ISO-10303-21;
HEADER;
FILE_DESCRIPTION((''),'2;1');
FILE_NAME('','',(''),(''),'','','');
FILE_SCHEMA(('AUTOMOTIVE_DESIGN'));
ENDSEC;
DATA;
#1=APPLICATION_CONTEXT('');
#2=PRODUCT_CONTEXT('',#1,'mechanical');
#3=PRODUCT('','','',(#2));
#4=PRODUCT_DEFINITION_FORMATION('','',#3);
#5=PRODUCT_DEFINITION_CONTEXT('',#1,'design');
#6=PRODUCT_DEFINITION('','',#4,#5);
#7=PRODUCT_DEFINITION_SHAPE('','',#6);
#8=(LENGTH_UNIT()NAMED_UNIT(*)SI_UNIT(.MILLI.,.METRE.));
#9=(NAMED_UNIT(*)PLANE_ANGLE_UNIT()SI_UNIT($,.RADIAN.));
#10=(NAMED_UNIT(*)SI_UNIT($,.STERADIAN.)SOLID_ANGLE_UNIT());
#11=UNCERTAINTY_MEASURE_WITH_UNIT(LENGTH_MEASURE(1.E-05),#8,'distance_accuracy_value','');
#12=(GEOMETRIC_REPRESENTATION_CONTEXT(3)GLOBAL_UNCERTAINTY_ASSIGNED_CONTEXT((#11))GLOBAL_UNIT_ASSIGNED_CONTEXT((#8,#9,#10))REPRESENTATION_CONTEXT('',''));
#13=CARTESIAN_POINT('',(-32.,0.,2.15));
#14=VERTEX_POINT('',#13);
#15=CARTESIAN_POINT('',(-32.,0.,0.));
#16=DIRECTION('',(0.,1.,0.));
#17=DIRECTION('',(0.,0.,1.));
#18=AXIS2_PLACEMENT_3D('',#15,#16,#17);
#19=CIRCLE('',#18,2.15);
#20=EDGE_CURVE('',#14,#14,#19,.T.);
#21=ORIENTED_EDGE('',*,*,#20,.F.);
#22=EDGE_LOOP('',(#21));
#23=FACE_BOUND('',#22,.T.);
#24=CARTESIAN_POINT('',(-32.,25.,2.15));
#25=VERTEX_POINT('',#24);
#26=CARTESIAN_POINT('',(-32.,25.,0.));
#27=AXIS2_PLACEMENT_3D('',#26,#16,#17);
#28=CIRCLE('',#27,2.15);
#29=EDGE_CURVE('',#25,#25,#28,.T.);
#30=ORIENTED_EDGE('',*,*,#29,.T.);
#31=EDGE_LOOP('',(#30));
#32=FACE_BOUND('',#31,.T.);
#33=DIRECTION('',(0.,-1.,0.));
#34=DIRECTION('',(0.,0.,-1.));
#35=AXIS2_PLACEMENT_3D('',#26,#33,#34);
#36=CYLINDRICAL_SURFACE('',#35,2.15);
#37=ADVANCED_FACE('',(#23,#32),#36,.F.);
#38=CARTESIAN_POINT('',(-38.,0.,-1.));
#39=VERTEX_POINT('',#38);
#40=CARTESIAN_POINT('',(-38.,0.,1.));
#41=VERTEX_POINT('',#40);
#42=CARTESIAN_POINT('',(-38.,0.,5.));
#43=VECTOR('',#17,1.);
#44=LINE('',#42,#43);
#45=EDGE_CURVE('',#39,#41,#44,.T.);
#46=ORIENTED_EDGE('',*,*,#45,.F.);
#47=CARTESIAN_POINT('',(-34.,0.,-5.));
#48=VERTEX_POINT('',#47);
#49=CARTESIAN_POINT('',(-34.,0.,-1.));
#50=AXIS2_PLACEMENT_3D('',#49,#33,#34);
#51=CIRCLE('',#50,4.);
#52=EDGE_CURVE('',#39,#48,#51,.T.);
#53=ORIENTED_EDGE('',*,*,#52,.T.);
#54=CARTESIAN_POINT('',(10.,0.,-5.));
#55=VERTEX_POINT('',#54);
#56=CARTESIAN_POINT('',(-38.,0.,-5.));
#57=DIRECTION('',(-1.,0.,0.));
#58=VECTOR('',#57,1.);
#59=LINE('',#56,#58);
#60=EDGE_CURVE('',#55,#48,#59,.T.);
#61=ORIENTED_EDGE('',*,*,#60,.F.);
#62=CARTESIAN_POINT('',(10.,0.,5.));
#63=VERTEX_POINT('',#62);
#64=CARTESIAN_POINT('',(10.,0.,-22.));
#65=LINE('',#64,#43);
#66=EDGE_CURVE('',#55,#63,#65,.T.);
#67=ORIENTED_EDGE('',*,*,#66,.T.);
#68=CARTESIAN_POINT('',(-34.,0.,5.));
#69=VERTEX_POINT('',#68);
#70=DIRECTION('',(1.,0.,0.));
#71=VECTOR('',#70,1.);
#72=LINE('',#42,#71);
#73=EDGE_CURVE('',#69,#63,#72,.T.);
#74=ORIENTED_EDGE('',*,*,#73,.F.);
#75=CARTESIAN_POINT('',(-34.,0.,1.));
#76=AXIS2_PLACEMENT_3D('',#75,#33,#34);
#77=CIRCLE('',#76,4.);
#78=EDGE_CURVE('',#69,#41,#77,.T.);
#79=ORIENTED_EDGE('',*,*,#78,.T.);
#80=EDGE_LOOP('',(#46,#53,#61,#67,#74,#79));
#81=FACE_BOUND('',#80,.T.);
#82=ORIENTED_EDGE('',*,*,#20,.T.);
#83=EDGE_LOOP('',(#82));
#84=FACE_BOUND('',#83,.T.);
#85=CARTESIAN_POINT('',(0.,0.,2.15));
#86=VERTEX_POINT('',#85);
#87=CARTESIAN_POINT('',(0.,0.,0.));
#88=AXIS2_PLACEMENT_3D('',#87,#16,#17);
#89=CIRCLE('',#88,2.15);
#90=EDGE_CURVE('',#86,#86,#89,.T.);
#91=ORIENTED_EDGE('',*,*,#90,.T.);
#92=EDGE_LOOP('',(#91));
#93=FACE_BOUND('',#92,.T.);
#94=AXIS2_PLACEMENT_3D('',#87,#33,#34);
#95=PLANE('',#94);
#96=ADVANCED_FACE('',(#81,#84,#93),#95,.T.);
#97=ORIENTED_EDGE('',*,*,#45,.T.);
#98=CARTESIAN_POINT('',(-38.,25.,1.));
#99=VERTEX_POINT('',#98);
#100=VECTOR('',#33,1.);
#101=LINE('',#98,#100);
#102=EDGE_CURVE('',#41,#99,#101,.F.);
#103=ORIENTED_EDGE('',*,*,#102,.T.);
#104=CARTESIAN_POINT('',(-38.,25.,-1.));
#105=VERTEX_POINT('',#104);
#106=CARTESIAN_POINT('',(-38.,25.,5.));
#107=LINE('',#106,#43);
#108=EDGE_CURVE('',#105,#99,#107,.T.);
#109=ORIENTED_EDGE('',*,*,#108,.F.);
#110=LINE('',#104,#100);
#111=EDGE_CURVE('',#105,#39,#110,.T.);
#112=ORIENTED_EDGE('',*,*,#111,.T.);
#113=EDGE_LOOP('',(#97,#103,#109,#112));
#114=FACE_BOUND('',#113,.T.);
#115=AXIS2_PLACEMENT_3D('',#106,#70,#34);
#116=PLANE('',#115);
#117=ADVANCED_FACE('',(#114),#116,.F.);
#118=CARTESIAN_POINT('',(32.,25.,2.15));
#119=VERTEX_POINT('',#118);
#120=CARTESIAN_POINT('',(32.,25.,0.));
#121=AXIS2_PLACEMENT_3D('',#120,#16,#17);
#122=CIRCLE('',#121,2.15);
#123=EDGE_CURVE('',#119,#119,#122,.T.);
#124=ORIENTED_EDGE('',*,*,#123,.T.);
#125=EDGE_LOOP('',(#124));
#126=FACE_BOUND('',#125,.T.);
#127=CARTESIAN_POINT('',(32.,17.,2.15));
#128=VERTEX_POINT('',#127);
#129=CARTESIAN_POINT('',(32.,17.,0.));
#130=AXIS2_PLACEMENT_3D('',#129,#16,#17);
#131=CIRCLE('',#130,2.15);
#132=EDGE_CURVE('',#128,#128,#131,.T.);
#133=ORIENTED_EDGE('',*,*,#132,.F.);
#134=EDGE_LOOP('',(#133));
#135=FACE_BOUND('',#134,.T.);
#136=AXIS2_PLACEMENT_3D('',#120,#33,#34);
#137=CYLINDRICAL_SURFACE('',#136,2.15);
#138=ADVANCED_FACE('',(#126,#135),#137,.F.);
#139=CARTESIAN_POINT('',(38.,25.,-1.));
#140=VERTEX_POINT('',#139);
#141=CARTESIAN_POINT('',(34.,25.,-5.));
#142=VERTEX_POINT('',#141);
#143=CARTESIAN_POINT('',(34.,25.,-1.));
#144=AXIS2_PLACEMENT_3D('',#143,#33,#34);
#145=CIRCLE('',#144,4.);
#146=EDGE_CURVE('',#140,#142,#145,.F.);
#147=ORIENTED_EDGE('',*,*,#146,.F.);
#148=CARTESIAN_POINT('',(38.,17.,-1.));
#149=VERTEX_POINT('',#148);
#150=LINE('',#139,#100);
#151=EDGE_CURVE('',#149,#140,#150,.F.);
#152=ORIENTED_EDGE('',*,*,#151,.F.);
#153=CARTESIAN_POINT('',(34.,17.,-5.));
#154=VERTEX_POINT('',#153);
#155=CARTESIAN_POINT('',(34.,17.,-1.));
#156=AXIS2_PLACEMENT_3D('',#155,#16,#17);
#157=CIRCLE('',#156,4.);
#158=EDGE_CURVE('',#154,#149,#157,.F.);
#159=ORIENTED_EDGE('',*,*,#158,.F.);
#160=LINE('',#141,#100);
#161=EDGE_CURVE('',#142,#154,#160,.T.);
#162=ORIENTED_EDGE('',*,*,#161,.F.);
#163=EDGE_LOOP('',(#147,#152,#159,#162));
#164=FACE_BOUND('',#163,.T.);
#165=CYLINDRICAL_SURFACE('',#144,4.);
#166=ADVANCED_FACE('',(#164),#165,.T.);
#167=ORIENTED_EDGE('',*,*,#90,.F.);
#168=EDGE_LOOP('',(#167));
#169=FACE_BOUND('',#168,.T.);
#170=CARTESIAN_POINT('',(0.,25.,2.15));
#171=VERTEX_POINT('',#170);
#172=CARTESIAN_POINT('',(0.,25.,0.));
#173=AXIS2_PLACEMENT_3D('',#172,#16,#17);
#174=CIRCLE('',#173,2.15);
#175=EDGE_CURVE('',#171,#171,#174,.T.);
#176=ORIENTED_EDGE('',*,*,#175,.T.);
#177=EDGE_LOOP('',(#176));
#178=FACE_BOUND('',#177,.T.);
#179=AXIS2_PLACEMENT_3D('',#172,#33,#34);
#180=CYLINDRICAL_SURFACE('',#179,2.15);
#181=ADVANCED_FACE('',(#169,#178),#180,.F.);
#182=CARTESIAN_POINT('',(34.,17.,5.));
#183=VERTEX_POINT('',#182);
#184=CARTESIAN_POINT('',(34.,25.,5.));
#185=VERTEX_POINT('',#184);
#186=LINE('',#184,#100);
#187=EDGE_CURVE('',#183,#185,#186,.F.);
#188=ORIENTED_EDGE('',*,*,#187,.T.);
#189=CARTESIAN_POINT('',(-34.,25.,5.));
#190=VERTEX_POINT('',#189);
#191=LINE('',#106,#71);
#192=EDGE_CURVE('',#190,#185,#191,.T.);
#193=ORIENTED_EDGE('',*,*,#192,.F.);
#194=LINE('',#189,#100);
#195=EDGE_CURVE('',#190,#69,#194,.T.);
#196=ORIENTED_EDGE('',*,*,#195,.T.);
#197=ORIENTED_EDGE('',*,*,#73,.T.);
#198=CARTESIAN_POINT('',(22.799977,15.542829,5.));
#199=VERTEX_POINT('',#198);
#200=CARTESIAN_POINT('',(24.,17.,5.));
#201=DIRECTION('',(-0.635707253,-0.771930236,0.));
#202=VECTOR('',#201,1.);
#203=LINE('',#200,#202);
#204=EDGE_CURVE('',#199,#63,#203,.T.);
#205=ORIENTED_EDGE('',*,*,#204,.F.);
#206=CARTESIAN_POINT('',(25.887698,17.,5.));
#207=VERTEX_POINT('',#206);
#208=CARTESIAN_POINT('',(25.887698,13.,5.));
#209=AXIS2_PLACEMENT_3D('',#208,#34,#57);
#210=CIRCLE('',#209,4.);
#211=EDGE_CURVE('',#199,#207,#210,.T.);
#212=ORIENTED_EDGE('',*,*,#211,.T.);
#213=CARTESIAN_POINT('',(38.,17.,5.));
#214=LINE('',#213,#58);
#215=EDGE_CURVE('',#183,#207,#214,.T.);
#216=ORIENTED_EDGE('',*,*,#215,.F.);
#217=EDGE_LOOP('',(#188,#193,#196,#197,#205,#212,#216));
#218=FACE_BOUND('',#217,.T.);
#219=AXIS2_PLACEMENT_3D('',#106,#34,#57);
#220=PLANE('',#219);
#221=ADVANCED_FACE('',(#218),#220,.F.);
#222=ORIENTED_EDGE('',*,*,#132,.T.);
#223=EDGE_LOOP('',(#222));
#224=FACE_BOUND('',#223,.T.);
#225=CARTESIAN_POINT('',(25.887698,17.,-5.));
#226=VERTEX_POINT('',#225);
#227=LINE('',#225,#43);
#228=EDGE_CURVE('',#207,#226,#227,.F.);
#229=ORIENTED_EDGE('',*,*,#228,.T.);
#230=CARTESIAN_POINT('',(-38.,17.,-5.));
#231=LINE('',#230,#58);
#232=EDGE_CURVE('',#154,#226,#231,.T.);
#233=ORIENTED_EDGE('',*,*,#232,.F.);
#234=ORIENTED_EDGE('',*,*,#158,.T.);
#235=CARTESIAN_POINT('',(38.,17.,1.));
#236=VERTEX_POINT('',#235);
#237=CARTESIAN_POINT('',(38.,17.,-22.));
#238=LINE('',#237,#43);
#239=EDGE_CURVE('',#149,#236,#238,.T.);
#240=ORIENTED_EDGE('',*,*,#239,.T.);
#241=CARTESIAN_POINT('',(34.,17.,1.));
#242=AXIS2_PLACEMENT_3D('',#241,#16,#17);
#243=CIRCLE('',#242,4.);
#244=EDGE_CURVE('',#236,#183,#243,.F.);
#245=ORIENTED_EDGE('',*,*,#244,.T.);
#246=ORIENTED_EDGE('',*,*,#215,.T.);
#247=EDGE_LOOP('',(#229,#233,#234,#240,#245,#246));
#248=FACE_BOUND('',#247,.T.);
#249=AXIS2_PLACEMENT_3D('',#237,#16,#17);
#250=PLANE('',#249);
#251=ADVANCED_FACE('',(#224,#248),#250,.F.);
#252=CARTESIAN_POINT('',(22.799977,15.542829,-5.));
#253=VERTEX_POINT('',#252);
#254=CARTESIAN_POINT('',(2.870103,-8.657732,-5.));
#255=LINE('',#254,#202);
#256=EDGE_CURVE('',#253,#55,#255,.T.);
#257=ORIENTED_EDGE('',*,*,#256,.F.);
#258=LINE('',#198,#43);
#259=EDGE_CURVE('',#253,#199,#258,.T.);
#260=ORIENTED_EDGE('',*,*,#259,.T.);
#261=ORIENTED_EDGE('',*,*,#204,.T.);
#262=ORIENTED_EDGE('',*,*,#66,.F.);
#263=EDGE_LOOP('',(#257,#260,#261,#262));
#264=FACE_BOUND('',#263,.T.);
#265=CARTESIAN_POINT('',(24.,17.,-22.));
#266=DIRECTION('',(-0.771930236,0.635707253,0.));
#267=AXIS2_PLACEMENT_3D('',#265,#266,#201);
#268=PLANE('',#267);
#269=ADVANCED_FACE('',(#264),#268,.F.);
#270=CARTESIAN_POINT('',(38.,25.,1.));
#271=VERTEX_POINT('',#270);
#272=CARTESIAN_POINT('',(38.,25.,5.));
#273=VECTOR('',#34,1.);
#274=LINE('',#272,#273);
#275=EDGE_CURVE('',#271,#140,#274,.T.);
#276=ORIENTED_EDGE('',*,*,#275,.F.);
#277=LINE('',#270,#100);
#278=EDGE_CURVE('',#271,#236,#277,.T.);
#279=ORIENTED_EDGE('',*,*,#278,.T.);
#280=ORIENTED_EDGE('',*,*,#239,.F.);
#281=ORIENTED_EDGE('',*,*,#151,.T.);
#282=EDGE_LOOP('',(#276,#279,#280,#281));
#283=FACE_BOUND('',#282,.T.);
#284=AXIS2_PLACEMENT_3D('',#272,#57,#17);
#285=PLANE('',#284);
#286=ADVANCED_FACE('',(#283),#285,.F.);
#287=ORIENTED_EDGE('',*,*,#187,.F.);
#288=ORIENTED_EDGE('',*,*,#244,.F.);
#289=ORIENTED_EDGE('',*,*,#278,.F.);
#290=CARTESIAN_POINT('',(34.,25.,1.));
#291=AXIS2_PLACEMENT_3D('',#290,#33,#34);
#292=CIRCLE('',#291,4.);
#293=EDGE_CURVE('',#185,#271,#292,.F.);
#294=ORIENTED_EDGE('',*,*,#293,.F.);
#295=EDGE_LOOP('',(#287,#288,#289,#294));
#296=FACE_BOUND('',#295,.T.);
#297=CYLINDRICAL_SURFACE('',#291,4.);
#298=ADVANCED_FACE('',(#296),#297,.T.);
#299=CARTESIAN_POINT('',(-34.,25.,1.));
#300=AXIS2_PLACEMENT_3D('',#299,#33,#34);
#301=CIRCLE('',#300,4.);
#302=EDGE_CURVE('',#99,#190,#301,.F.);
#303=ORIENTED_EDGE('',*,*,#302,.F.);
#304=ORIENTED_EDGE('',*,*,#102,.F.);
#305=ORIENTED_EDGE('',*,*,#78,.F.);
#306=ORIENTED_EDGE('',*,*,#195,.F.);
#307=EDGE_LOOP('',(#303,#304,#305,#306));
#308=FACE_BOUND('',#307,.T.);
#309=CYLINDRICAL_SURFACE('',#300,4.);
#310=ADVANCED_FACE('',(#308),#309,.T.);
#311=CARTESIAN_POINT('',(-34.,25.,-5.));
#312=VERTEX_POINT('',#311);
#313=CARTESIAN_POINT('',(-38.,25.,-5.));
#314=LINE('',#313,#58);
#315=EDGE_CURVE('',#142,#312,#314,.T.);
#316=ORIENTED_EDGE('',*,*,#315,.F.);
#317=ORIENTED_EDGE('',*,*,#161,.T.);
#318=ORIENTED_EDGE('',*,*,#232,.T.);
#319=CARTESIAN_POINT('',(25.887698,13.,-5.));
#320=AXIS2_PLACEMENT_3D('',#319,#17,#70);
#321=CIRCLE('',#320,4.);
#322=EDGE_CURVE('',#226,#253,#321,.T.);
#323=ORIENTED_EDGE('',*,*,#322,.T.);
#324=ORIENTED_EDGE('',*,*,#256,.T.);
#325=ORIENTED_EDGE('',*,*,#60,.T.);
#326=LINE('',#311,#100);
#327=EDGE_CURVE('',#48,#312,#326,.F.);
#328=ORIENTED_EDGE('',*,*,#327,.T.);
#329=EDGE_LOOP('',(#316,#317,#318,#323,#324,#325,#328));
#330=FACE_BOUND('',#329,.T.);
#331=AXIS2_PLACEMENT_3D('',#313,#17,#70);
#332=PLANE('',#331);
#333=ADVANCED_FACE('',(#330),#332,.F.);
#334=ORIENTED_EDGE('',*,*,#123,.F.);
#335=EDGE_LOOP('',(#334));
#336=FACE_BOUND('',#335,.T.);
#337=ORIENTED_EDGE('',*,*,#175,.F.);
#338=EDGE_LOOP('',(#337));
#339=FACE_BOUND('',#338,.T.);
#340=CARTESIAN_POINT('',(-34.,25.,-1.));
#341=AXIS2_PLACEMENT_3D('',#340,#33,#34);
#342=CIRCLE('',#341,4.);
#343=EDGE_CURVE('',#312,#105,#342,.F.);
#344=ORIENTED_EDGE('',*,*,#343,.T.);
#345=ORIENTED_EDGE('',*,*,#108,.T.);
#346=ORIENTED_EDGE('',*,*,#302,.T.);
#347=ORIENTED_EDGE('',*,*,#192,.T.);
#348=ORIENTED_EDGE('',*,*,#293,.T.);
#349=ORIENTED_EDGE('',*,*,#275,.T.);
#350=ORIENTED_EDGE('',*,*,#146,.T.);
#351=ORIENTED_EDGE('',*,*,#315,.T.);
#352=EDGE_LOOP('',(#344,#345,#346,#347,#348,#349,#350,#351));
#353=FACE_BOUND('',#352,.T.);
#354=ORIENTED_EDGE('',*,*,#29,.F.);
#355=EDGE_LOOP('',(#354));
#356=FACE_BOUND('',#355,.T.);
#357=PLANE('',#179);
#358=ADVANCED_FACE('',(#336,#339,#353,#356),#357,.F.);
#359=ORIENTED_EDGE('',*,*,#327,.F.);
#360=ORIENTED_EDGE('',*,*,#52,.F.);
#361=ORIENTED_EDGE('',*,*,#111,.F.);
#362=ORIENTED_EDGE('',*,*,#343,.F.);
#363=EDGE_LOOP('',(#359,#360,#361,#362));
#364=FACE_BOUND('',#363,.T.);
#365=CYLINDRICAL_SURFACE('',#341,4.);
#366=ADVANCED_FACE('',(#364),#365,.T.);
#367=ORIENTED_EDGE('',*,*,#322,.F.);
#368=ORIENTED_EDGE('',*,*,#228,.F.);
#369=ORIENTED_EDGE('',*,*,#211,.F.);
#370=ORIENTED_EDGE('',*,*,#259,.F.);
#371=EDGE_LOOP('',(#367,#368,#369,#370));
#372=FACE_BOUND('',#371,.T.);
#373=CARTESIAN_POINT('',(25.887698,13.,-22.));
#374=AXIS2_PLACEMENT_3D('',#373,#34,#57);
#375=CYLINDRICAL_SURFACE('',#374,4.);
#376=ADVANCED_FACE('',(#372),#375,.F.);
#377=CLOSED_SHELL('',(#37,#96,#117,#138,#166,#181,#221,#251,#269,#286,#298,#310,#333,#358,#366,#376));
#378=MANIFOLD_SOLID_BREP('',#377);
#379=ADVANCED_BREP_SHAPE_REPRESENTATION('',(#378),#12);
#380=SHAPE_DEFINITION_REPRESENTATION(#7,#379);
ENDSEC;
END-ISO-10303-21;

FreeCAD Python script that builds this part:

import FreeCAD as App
import Part
import Sketcher

V = App.Vector


def edges_at(feature, points):
    """Names of the edges that pass closest to the given points."""
    edges = feature.Shape.Edges
    near = lambda p: min(range(len(edges)), key=lambda i: edges[i].distToShape(Part.Vertex(*p))[0])
    return sorted({f"Edge{near(p) + 1}" for p in points})

doc = App.newDocument("Part")
params = doc.addObject("Spreadsheet::Sheet", "Params")
for row, (alias, value) in enumerate([
    ("sketch1_diameter", "4.3 mm"),
    ("sketch1_width", "76 mm"),
    ("sketch1_height", "10 mm"),
    ("pad1_length", "25 mm"),
    ("sketch2_width", "14 mm"),
    ("sketch2_width2", "28 mm"),
    ("sketch2_height", "17 mm"),
    ("pocket1_length", "27 mm"),
    ("fillet_radius", "4 mm"),
], start=1):
    params.set(f"A{row}", alias)
    params.set(f"B{row}", "=" + value)
    params.setAlias(f"B{row}", alias)

body = doc.addObject("PartDesign::Body", "Body")

sketch1 = doc.addObject("Sketcher::SketchObject", "Sketch")
body.addObject(sketch1)
sketch1.AttachmentSupport = (doc.XZ_Plane, [""])
sketch1.MapMode = "FlatFace"
sketch1.addGeometry([
    Part.LineSegment(V(-38, -5, 0), V(-38, 5, 0)),
    Part.LineSegment(V(-38, 5, 0), V(38, 5, 0)),
    Part.LineSegment(V(38, 5, 0), V(38, -5, 0)),
    Part.LineSegment(V(38, -5, 0), V(-38, -5, 0)),
    Part.Circle(V(-32, 0, 0), V(0, 0, 1), 2.1),
    Part.Circle(V(0, 0, 0), V(0, 0, 1), 2.1),
    Part.Circle(V(32, 0, 0), V(0, 0, 1), 2.1),
], False)
sketch1.addConstraint([
    Sketcher.Constraint("Coincident", 0, 2, 1, 1),
    Sketcher.Constraint("Coincident", 1, 2, 2, 1),
    Sketcher.Constraint("Coincident", 2, 2, 3, 1),
    Sketcher.Constraint("Coincident", 3, 2, 0, 1),
    Sketcher.Constraint("Vertical", 0),
    Sketcher.Constraint("Horizontal", 1),
    Sketcher.Constraint("Vertical", 2),
    Sketcher.Constraint("Horizontal", 3),
    Sketcher.Constraint("Coincident", 5, 3, -1, 1),
    Sketcher.Constraint("Equal", 4, 5),
    Sketcher.Constraint("Equal", 5, 6),
    Sketcher.Constraint("Symmetric", 4, 3, 6, 3, -1, 1),
    Sketcher.Constraint("Symmetric", 0, 2, 2, 2, -1, 1),
    Sketcher.Constraint("PointOnObject", 4, 3, -1),
    Sketcher.Constraint("Diameter", 4, 4.3),
    Sketcher.Constraint("DistanceX", 1, 1, 1, 2, 76.0),
    Sketcher.Constraint("DistanceY", 0, 1, 0, 2, 10.0),
    Sketcher.Constraint("DistanceX", 4, 3, -1, 1, 32.0),
])
sketch1.setExpression("Constraints[14]", "Params.sketch1_diameter")
sketch1.setExpression("Constraints[15]", "Params.sketch1_width")
sketch1.setExpression("Constraints[16]", "Params.sketch1_height")
pad1 = doc.addObject("PartDesign::Pad", "Pad")
body.addObject(pad1)
pad1.Profile = sketch1
pad1.setExpression("Length", "Params.pad1_length")
pad1.Reversed = True

sketch2 = doc.addObject("Sketcher::SketchObject", "Sketch001")
body.addObject(sketch2)
sketch2.AttachmentSupport = (doc.XY_Plane, [""])
sketch2.MapMode = "FlatFace"
sketch2.AttachmentOffset = App.Placement(V(0, 0, 5), App.Rotation())
sketch2.addGeometry([
    Part.LineSegment(V(38, 17, 0), V(24, 17, 0)),
    Part.LineSegment(V(24, 17, 0), V(10, 0, 0)),
    Part.LineSegment(V(10, 0, 0), V(38, 0, 0)),
    Part.LineSegment(V(38, 0, 0), V(38, 17, 0)),
], False)
sketch2.addConstraint([
    Sketcher.Constraint("Coincident", 0, 2, 1, 1),
    Sketcher.Constraint("Coincident", 1, 2, 2, 1),
    Sketcher.Constraint("Coincident", 2, 2, 3, 1),
    Sketcher.Constraint("Coincident", 3, 2, 0, 1),
    Sketcher.Constraint("Horizontal", 0),
    Sketcher.Constraint("Horizontal", 2),
    Sketcher.Constraint("Vertical", 3),
    Sketcher.Constraint("PointOnObject", 1, 2, -1),
    Sketcher.Constraint("DistanceX", 0, 2, 0, 1, 14.0),
    Sketcher.Constraint("DistanceX", 2, 1, 2, 2, 28.0),
    Sketcher.Constraint("DistanceY", 3, 1, 3, 2, 17.0),
    Sketcher.Constraint("DistanceX", -1, 1, 0, 2, 24.0),
])
sketch2.setExpression("Constraints[8]", "Params.sketch2_width")
sketch2.setExpression("Constraints[9]", "Params.sketch2_width2")
sketch2.setExpression("Constraints[10]", "Params.sketch2_height")
pocket1 = doc.addObject("PartDesign::Pocket", "Pocket")
body.addObject(pocket1)
pocket1.Profile = sketch2
pocket1.setExpression("Length", "Params.pocket1_length")
doc.recompute()

fillet = doc.addObject("PartDesign::Fillet", "Fillet")
body.addObject(fillet)
fillet.Base = (pocket1, edges_at(pocket1, [
    (24, 17, 0),
    (38, 21, 5),
    (-38, 12.5, 5),
    (-38, 12.5, -5),
    (38, 21, -5),
]))
fillet.setExpression("Radius", "Params.fillet_radius")

doc.recompute()
